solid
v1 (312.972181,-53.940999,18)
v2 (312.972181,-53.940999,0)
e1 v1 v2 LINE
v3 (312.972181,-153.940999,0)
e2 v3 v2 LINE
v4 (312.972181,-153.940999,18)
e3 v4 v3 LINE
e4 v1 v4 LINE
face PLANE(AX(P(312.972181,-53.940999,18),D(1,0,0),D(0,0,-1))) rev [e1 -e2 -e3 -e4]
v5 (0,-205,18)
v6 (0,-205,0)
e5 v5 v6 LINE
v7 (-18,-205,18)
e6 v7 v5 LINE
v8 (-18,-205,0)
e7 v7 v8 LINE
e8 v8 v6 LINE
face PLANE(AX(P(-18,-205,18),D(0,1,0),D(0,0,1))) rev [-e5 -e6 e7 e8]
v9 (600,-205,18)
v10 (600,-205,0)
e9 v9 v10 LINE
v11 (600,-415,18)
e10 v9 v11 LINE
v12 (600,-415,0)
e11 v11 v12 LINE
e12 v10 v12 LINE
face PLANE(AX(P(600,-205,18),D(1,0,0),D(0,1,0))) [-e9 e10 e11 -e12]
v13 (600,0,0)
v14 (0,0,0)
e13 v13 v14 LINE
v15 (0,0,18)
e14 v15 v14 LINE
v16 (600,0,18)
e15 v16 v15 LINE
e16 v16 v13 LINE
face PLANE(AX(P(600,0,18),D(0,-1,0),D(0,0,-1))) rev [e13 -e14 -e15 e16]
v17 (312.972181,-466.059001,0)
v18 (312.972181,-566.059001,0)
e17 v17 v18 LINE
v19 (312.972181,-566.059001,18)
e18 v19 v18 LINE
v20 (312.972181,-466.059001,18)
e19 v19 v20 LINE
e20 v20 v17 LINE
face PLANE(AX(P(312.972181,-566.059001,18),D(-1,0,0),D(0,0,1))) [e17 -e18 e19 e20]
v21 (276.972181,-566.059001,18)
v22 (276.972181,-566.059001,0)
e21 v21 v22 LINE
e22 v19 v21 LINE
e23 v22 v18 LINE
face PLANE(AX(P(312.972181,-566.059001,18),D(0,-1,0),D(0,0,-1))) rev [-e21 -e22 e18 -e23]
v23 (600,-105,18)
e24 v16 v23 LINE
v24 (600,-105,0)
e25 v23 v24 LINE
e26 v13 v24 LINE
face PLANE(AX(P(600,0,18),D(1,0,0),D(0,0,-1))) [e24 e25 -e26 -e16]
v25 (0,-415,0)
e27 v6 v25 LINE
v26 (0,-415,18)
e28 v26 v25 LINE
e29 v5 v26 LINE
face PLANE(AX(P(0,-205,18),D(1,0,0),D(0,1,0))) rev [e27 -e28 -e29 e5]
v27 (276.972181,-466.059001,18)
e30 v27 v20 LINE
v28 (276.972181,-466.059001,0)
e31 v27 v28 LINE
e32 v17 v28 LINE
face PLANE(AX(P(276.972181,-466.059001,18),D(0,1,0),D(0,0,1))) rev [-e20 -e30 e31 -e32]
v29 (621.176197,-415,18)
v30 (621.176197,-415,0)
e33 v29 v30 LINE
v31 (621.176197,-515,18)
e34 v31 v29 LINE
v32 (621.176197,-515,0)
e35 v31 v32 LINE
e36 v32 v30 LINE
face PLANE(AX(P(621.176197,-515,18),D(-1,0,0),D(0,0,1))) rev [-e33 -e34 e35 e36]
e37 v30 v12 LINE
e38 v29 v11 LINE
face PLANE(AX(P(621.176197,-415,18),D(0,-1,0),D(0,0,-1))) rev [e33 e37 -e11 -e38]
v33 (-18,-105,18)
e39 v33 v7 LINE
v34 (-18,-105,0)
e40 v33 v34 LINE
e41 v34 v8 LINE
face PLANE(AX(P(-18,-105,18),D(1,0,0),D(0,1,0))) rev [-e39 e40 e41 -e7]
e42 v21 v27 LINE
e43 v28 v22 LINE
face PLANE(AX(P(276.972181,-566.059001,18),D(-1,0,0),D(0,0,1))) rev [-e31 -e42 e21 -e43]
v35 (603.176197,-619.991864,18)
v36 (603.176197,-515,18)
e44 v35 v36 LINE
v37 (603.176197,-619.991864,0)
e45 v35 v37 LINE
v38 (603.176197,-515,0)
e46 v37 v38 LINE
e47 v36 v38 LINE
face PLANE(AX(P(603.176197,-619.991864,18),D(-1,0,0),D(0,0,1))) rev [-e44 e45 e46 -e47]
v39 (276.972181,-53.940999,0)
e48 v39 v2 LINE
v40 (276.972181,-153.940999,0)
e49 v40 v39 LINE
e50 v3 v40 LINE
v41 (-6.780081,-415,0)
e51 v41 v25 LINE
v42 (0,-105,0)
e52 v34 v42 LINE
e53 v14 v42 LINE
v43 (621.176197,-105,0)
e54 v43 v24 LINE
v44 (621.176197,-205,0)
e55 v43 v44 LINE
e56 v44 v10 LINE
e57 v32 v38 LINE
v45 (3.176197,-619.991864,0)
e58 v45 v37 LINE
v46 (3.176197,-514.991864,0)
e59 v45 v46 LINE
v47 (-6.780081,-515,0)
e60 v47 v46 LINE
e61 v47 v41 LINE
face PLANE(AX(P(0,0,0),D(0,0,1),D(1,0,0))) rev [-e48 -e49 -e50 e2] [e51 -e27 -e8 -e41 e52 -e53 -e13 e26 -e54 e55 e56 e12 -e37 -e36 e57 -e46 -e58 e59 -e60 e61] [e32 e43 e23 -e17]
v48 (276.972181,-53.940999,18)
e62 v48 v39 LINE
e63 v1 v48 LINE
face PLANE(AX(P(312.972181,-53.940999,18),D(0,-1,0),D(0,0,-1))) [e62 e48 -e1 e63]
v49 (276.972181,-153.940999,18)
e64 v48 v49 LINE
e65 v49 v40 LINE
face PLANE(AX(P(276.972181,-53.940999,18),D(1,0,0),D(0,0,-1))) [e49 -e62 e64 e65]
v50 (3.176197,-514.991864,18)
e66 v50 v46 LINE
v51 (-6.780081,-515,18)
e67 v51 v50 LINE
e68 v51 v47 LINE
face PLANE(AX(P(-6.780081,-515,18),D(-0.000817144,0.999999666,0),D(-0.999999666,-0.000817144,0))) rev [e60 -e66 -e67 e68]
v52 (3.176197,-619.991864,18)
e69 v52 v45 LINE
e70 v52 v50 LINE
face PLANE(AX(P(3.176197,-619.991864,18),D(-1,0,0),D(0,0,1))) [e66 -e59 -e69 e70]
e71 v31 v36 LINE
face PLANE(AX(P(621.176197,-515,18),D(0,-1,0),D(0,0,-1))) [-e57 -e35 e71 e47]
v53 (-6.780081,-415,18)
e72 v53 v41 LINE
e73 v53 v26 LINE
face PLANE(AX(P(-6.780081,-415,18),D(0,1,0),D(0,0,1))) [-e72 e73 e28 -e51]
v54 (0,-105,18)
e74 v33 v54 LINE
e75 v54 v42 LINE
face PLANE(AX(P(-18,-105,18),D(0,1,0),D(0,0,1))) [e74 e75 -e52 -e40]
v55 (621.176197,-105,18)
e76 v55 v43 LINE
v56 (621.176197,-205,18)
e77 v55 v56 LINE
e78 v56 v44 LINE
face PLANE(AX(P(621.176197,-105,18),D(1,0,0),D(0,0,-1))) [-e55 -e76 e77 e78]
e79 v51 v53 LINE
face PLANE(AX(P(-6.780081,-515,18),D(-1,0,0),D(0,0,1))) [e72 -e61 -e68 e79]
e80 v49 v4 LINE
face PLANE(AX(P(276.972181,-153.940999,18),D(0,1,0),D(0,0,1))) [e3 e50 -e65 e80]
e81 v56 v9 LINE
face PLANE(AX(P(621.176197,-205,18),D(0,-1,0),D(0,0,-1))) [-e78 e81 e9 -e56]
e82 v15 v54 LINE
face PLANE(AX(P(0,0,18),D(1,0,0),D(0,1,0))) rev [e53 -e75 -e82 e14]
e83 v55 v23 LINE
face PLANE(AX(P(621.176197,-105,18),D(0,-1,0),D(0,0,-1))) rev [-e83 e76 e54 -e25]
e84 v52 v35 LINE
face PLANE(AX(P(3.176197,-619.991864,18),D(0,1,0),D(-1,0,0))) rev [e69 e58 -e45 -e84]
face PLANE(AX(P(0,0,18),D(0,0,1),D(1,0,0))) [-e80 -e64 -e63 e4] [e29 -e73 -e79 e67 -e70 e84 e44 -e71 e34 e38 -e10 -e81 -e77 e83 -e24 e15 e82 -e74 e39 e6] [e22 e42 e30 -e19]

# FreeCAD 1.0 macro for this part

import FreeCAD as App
import Part
import Sketcher
from FreeCAD import Vector
Q = App.Units.Quantity

doc = App.newDocument("Part")
body = doc.addObject("PartDesign::Body", "Body")

# Sketch on XY plane
sketch1 = doc.addObject("Sketcher::SketchObject", "Sketch")
body.addObject(sketch1)
sketch1.AttachmentSupport = (doc.XY_Plane, [""])
sketch1.MapMode = "FlatFace"
sketch1.addGeometry(Part.LineSegment(Vector(0, 0, 0), Vector(0, -105, 0)), False)
sketch1.addGeometry(Part.LineSegment(Vector(0, -105, 0), Vector(-18, -105, 0)), False)
sketch1.addGeometry(Part.LineSegment(Vector(-18, -105, 0), Vector(-18, -205, 0)), False)
sketch1.addGeometry(Part.LineSegment(Vector(-18, -205, 0), Vector(0, -205, 0)), False)
sketch1.addGeometry(Part.LineSegment(Vector(0, -205, 0), Vector(0, -415, 0)), False)
sketch1.addGeometry(Part.LineSegment(Vector(0, -415, 0), Vector(-6.780081, -415, 0)), False)
sketch1.addGeometry(Part.LineSegment(Vector(-6.780081, -415, 0), Vector(-6.780081, -515, 0)), False)
sketch1.addGeometry(Part.LineSegment(Vector(-6.780081, -515, 0), Vector(3.176197, -514.991864, 0)), False)
sketch1.addGeometry(Part.LineSegment(Vector(3.176197, -514.991864, 0), Vector(3.176197, -619.991864, 0)), False)
sketch1.addGeometry(Part.LineSegment(Vector(3.176197, -619.991864, 0), Vector(603.176197, -619.991864, 0)), False)
sketch1.addGeometry(Part.LineSegment(Vector(603.176197, -619.991864, 0), Vector(603.176197, -515, 0)), False)
sketch1.addGeometry(Part.LineSegment(Vector(603.176197, -515, 0), Vector(621.176197, -515, 0)), False)
sketch1.addGeometry(Part.LineSegment(Vector(621.176197, -515, 0), Vector(621.176197, -415, 0)), False)
sketch1.addGeometry(Part.LineSegment(Vector(621.176197, -415, 0), Vector(600, -415, 0)), False)
sketch1.addGeometry(Part.LineSegment(Vector(600, -415, 0), Vector(600, -205, 0)), False)
sketch1.addGeometry(Part.LineSegment(Vector(600, -205, 0), Vector(621.176197, -205, 0)), False)
sketch1.addGeometry(Part.LineSegment(Vector(621.176197, -205, 0), Vector(621.176197, -105, 0)), False)
sketch1.addGeometry(Part.LineSegment(Vector(621.176197, -105, 0), Vector(600, -105, 0)), False)
sketch1.addGeometry(Part.LineSegment(Vector(600, -105, 0), Vector(600, 0, 0)), False)
sketch1.addGeometry(Part.LineSegment(Vector(600, 0, 0), Vector(0, 0, 0)), False)
sketch1.addConstraint(Sketcher.Constraint("Coincident", 0, 2, 1, 1))
sketch1.addConstraint(Sketcher.Constraint("Coincident", 1, 2, 2, 1))
sketch1.addConstraint(Sketcher.Constraint("Coincident", 2, 2, 3, 1))
sketch1.addConstraint(Sketcher.Constraint("Coincident", 3, 2, 4, 1))
sketch1.addConstraint(Sketcher.Constraint("Coincident", 4, 2, 5, 1))
sketch1.addConstraint(Sketcher.Constraint("Coincident", 5, 2, 6, 1))
sketch1.addConstraint(Sketcher.Constraint("Coincident", 6, 2, 7, 1))
sketch1.addConstraint(Sketcher.Constraint("Coincident", 7, 2, 8, 1))
sketch1.addConstraint(Sketcher.Constraint("Coincident", 8, 2, 9, 1))
sketch1.addConstraint(Sketcher.Constraint("Coincident", 9, 2, 10, 1))
sketch1.addConstraint(Sketcher.Constraint("Coincident", 10, 2, 11, 1))
sketch1.addConstraint(Sketcher.Constraint("Coincident", 11, 2, 12, 1))
sketch1.addConstraint(Sketcher.Constraint("Coincident", 12, 2, 13, 1))
sketch1.addConstraint(Sketcher.Constraint("Coincident", 13, 2, 14, 1))
sketch1.addConstraint(Sketcher.Constraint("Coincident", 14, 2, 15, 1))
sketch1.addConstraint(Sketcher.Constraint("Coincident", 15, 2, 16, 1))
sketch1.addConstraint(Sketcher.Constraint("Coincident", 16, 2, 17, 1))
sketch1.addConstraint(Sketcher.Constraint("Coincident", 17, 2, 18, 1))
sketch1.addConstraint(Sketcher.Constraint("Coincident", 18, 2, 19, 1))
sketch1.addConstraint(Sketcher.Constraint("Coincident", 19, 2, 0, 1))
sketch1.addConstraint(Sketcher.Constraint("Vertical", 0))
sketch1.addConstraint(Sketcher.Constraint("Horizontal", 1))
sketch1.addConstraint(Sketcher.Constraint("Vertical", 2))
sketch1.addConstraint(Sketcher.Constraint("Horizontal", 3))
sketch1.addConstraint(Sketcher.Constraint("Vertical", 4))
sketch1.addConstraint(Sketcher.Constraint("Horizontal", 5))
sketch1.addConstraint(Sketcher.Constraint("Vertical", 6))
sketch1.addConstraint(Sketcher.Constraint("Vertical", 8))
sketch1.addConstraint(Sketcher.Constraint("Horizontal", 9))
sketch1.addConstraint(Sketcher.Constraint("Vertical", 10))
sketch1.addConstraint(Sketcher.Constraint("Horizontal", 11))
sketch1.addConstraint(Sketcher.Constraint("Vertical", 12))
sketch1.addConstraint(Sketcher.Constraint("Horizontal", 13))
sketch1.addConstraint(Sketcher.Constraint("Vertical", 14))
sketch1.addConstraint(Sketcher.Constraint("Horizontal", 15))
sketch1.addConstraint(Sketcher.Constraint("Vertical", 16))
sketch1.addConstraint(Sketcher.Constraint("Horizontal", 17))
sketch1.addConstraint(Sketcher.Constraint("Vertical", 18))
sketch1.addConstraint(Sketcher.Constraint("Horizontal", 19))
sketch1.addConstraint(Sketcher.Constraint("Coincident", 19, 2, -1, 1))
sketch1.addConstraint(Sketcher.Constraint("PointOnObject", 3, 2, -2))
sketch1.addConstraint(Sketcher.Constraint("Horizontal", 6, 2, 10, 2))
sketch1.addConstraint(Sketcher.Constraint("Horizontal", 5, 2, 12, 2))
sketch1.addConstraint(Sketcher.Constraint("Horizontal", 3, 2, 14, 2))
sketch1.addConstraint(Sketcher.Constraint("Horizontal", 1, 2, 16, 2))
sketch1.addConstraint(Sketcher.Constraint("Vertical", 12, 2, 15, 2))
sketch1.addConstraint(Sketcher.Constraint("Vertical", 14, 2, 17, 2))
sketch1.addConstraint(Sketcher.Constraint("Equal", 3, 11))
sketch1.addConstraint(Sketcher.Constraint("Equal", 9, 19))
sketch1.addConstraint(Sketcher.Constraint("Equal", 2, 6))
sketch1.addConstraint(Sketcher.Constraint("Equal", 0, 8))
sketch1.addConstraint(Sketcher.Constraint("DistanceX", 1, 2, 1, 1, Q("18 mm")))
sketch1.addConstraint(Sketcher.Constraint("DistanceX", 9, 1, 9, 2, Q("600 mm")))
sketch1.addConstraint(Sketcher.Constraint("DistanceY", 0, 2, 0, 1, Q("105 mm")))
sketch1.addConstraint(Sketcher.Constraint("DistanceY", 2, 2, 2, 1, Q("100 mm")))
sketch1.addConstraint(Sketcher.Constraint("DistanceY", 4, 2, 4, 1, Q("210 mm")))
sketch1.addConstraint(Sketcher.Constraint("DistanceX", 5, 2, 5, 1, Q("6.780081 mm")))
sketch1.addConstraint(Sketcher.Constraint("Distance", 7, Q("9.956281 mm")))
sketch1.addConstraint(Sketcher.Constraint("DistanceY", 10, 1, 10, 2, Q("104.991864 mm")))
pad1 = doc.addObject("PartDesign::Pad", "Pad")
body.addObject(pad1)
pad1.Profile = sketch1
pad1.Length = 18

# Sketch on XY plane
sketch2 = doc.addObject("Sketcher::SketchObject", "Sketch001")
body.addObject(sketch2)
sketch2.AttachmentSupport = (doc.XY_Plane, [""])
sketch2.MapMode = "FlatFace"
sketch2.addGeometry(Part.LineSegment(Vector(312.972181, -53.940999, 0), Vector(312.972181, -153.940999, 0)), False)
sketch2.addGeometry(Part.LineSegment(Vector(312.972181, -153.940999, 0), Vector(276.972181, -153.940999, 0)), False)
sketch2.addGeometry(Part.LineSegment(Vector(276.972181, -153.940999, 0), Vector(276.972181, -53.940999, 0)), False)
sketch2.addGeometry(Part.LineSegment(Vector(276.972181, -53.940999, 0), Vector(312.972181, -53.940999, 0)), False)
sketch2.addGeometry(Part.LineSegment(Vector(312.972181, -466.059001, 0), Vector(312.972181, -566.059001, 0)), False)
sketch2.addGeometry(Part.LineSegment(Vector(312.972181, -566.059001, 0), Vector(276.972181, -566.059001, 0)), False)
sketch2.addGeometry(Part.LineSegment(Vector(276.972181, -566.059001, 0), Vector(276.972181, -466.059001, 0)), False)
sketch2.addGeometry(Part.LineSegment(Vector(276.972181, -466.059001, 0), Vector(312.972181, -466.059001, 0)), False)
sketch2.addConstraint(Sketcher.Constraint("Coincident", 0, 2, 1, 1))
sketch2.addConstraint(Sketcher.Constraint("Coincident", 1, 2, 2, 1))
sketch2.addConstraint(Sketcher.Constraint("Coincident", 2, 2, 3, 1))
sketch2.addConstraint(Sketcher.Constraint("Coincident", 3, 2, 0, 1))
sketch2.addConstraint(Sketcher.Constraint("Coincident", 4, 2, 5, 1))
sketch2.addConstraint(Sketcher.Constraint("Coincident", 5, 2, 6, 1))
sketch2.addConstraint(Sketcher.Constraint("Coincident", 6, 2, 7, 1))
sketch2.addConstraint(Sketcher.Constraint("Coincident", 7, 2, 4, 1))
sketch2.addConstraint(Sketcher.Constraint("Vertical", 0))
sketch2.addConstraint(Sketcher.Constraint("Horizontal", 1))
sketch2.addConstraint(Sketcher.Constraint("Vertical", 2))
sketch2.addConstraint(Sketcher.Constraint("Horizontal", 3))
sketch2.addConstraint(Sketcher.Constraint("Vertical", 4))
sketch2.addConstraint(Sketcher.Constraint("Horizontal", 5))
sketch2.addConstraint(Sketcher.Constraint("Vertical", 6))
sketch2.addConstraint(Sketcher.Constraint("Horizontal", 7))
sketch2.addConstraint(Sketcher.Constraint("Vertical", 3, 2, 4, 2))
sketch2.addConstraint(Sketcher.Constraint("Vertical", 2, 2, 5, 2))
sketch2.addConstraint(Sketcher.Constraint("Equal", 2, 4))
sketch2.addConstraint(Sketcher.Constraint("DistanceX", 1, 2, 1, 1, Q("36 mm")))
sketch2.addConstraint(Sketcher.Constraint("DistanceY", 0, 2, 0, 1, Q("100 mm")))
sketch2.addConstraint(Sketcher.Constraint("DistanceY", 0, 2, -1, 1, Q("153.940999 mm")))
sketch2.addConstraint(Sketcher.Constraint("DistanceY", 4, 2, -1, 1, Q("566.059001 mm")))
sketch2.addConstraint(Sketcher.Constraint("DistanceX", -1, 1, 0, 2, Q("312.972181 mm")))
pocket1 = doc.addObject("PartDesign::Pocket", "Pocket")
body.addObject(pocket1)
pocket1.Profile = sketch2
pocket1.Type = "ThroughAll"
pocket1.Midplane = True

doc.recompute()
